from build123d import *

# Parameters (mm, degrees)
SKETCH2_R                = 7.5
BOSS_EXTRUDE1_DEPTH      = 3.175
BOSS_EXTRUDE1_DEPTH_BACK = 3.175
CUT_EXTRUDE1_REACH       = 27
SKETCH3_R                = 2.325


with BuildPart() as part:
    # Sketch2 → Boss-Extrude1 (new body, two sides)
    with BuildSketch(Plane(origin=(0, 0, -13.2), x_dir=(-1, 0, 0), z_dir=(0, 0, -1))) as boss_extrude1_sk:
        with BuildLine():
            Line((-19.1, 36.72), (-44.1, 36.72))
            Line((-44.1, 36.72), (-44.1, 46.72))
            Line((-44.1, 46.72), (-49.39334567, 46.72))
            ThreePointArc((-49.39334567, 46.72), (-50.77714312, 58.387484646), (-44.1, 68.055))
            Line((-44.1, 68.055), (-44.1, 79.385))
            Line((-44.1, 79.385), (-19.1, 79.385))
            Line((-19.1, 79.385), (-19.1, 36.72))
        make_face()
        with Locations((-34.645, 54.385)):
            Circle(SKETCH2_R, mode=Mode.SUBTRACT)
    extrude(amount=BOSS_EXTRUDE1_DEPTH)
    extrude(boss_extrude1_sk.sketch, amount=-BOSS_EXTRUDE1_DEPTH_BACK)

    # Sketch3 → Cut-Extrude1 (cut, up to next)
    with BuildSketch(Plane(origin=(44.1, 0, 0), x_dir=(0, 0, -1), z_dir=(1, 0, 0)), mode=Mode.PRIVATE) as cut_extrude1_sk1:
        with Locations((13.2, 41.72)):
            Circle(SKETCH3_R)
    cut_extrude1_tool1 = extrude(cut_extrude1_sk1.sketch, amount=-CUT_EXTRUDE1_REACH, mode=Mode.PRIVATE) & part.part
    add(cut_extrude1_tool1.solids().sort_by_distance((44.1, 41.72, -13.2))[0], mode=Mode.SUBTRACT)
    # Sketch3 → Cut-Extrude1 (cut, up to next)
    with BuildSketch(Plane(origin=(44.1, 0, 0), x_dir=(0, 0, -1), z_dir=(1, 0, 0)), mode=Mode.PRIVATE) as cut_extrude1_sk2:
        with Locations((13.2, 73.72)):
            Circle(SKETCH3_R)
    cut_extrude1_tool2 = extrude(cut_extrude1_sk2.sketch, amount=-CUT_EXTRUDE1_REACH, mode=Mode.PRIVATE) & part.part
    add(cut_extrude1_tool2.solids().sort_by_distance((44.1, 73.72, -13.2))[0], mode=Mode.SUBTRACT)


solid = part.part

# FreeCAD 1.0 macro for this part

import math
import FreeCAD as App
import Part
import Sketcher

V = App.Vector
Q = App.Units.Quantity

doc = App.newDocument("Part")
body = doc.addObject("PartDesign::Body", "Body")

# Sketch on XY plane
sketch1 = doc.addObject("Sketcher::SketchObject", "Sketch")
body.addObject(sketch1)
sketch1.AttachmentSupport = (doc.XY_Plane, [""])
sketch1.MapMode = "FlatFace"
sketch1.AttachmentOffset = App.Placement(V(0, 0, -13.2), App.Rotation())
sketch1.addGeometry([
    Part.LineSegment(V(44, 37, 0), V(19, 37, 0)),  # 0
    Part.LineSegment(V(19, 37, 0), V(19, 79, 0)),  # 1
    Part.LineSegment(V(19, 79, 0), V(44, 79, 0)),  # 2
    Part.LineSegment(V(44, 79, 0), V(44, 68, 0)),  # 3
    Part.ArcOfCircle(Part.Circle(V(35, 54, 0), V(0, 0, 1), 17), math.radians(-27), math.radians(55)),  # 4
    Part.LineSegment(V(49, 47, 0), V(44, 47, 0)),  # 5
    Part.LineSegment(V(44, 47, 0), V(44, 37, 0)),  # 6
    Part.Circle(V(35, 54, 0), V(0, 0, 1), 8),  # 7
], False)
sketch1.addConstraint([
    Sketcher.Constraint("Coincident", 0, 2, 1, 1),
    Sketcher.Constraint("Coincident", 1, 2, 2, 1),
    Sketcher.Constraint("Coincident", 2, 2, 3, 1),
    Sketcher.Constraint("Coincident", 3, 2, 4, 2),
    Sketcher.Constraint("Coincident", 4, 1, 5, 1),
    Sketcher.Constraint("Coincident", 5, 2, 6, 1),
    Sketcher.Constraint("Coincident", 6, 2, 0, 1),
    Sketcher.Constraint("Horizontal", 0),
    Sketcher.Constraint("Vertical", 1),
    Sketcher.Constraint("Horizontal", 2),
    Sketcher.Constraint("Vertical", 3),
    Sketcher.Constraint("Horizontal", 5),
    Sketcher.Constraint("Vertical", 6),
    Sketcher.Constraint("Coincident", 7, 3, 4, 3),
    Sketcher.Constraint("Vertical", 3, 2, 5, 2),
    Sketcher.Constraint("Diameter", 7, Q("15 mm")),
    Sketcher.Constraint("DistanceX", 0, 2, 0, 1, Q("25 mm")),
    Sketcher.Constraint("DistanceY", 6, 2, 6, 1, Q("10 mm")),
    Sketcher.Constraint("DistanceY", 4, 3, 1, 2, Q("25 mm")),
    Sketcher.Constraint("DistanceY", 3, 2, 3, 1, Q("11.33 mm")),
    Sketcher.Constraint("DistanceX", -1, 1, 0, 2, Q("19.1 mm")),
    Sketcher.Constraint("DistanceY", 1, 1, 1, 2, Q("42.665 mm")),
    Sketcher.Constraint("DistanceY", -1, 1, 0, 2, Q("36.72 mm")),
    Sketcher.Constraint("Radius", 4, Q("16.621249 mm")),
])
pad1 = doc.addObject("PartDesign::Pad", "Pad")
body.addObject(pad1)
pad1.Profile = sketch1
pad1.Type = "TwoLengths"
pad1.Length = 3.175
pad1.Length2 = 3.175
pad1.Reversed = True

# Sketch on YZ plane
sketch2 = doc.addObject("Sketcher::SketchObject", "Sketch001")
body.addObject(sketch2)
sketch2.AttachmentSupport = (doc.YZ_Plane, [""])
sketch2.MapMode = "FlatFace"
sketch2.AttachmentOffset = App.Placement(V(0, 0, 44.1), App.Rotation())
sketch2.addGeometry(Part.Circle(V(41.7, -13.2, 0), V(0, 0, 1), 2.3), False)
sketch2.addConstraint([
    Sketcher.Constraint("Diameter", 0, Q("4.65 mm")),
    Sketcher.Constraint("DistanceY", 0, 3, -1, 1, Q("13.2 mm")),
    Sketcher.Constraint("DistanceX", -1, 1, 0, 3, Q("41.72 mm")),
])
pocket1 = doc.addObject("PartDesign::Pocket", "Pocket")
body.addObject(pocket1)
pocket1.Profile = sketch2
pocket1.Type = "UpToFirst"

# Sketch on YZ plane
sketch3 = doc.addObject("Sketcher::SketchObject", "Sketch002")
body.addObject(sketch3)
sketch3.AttachmentSupport = (doc.YZ_Plane, [""])
sketch3.MapMode = "FlatFace"
sketch3.AttachmentOffset = App.Placement(V(0, 0, 44.1), App.Rotation())
sketch3.addGeometry(Part.Circle(V(73.7, -13.2, 0), V(0, 0, 1), 2.3), False)
sketch3.addConstraint([
    Sketcher.Constraint("Diameter", 0, Q("4.65 mm")),
    Sketcher.Constraint("DistanceY", 0, 3, -1, 1, Q("13.2 mm")),
    Sketcher.Constraint("DistanceX", -1, 1, 0, 3, Q("73.72 mm")),
])
pocket2 = doc.addObject("PartDesign::Pocket", "Pocket001")
body.addObject(pocket2)
pocket2.Profile = sketch3
pocket2.Type = "UpToFirst"

doc.recompute()
